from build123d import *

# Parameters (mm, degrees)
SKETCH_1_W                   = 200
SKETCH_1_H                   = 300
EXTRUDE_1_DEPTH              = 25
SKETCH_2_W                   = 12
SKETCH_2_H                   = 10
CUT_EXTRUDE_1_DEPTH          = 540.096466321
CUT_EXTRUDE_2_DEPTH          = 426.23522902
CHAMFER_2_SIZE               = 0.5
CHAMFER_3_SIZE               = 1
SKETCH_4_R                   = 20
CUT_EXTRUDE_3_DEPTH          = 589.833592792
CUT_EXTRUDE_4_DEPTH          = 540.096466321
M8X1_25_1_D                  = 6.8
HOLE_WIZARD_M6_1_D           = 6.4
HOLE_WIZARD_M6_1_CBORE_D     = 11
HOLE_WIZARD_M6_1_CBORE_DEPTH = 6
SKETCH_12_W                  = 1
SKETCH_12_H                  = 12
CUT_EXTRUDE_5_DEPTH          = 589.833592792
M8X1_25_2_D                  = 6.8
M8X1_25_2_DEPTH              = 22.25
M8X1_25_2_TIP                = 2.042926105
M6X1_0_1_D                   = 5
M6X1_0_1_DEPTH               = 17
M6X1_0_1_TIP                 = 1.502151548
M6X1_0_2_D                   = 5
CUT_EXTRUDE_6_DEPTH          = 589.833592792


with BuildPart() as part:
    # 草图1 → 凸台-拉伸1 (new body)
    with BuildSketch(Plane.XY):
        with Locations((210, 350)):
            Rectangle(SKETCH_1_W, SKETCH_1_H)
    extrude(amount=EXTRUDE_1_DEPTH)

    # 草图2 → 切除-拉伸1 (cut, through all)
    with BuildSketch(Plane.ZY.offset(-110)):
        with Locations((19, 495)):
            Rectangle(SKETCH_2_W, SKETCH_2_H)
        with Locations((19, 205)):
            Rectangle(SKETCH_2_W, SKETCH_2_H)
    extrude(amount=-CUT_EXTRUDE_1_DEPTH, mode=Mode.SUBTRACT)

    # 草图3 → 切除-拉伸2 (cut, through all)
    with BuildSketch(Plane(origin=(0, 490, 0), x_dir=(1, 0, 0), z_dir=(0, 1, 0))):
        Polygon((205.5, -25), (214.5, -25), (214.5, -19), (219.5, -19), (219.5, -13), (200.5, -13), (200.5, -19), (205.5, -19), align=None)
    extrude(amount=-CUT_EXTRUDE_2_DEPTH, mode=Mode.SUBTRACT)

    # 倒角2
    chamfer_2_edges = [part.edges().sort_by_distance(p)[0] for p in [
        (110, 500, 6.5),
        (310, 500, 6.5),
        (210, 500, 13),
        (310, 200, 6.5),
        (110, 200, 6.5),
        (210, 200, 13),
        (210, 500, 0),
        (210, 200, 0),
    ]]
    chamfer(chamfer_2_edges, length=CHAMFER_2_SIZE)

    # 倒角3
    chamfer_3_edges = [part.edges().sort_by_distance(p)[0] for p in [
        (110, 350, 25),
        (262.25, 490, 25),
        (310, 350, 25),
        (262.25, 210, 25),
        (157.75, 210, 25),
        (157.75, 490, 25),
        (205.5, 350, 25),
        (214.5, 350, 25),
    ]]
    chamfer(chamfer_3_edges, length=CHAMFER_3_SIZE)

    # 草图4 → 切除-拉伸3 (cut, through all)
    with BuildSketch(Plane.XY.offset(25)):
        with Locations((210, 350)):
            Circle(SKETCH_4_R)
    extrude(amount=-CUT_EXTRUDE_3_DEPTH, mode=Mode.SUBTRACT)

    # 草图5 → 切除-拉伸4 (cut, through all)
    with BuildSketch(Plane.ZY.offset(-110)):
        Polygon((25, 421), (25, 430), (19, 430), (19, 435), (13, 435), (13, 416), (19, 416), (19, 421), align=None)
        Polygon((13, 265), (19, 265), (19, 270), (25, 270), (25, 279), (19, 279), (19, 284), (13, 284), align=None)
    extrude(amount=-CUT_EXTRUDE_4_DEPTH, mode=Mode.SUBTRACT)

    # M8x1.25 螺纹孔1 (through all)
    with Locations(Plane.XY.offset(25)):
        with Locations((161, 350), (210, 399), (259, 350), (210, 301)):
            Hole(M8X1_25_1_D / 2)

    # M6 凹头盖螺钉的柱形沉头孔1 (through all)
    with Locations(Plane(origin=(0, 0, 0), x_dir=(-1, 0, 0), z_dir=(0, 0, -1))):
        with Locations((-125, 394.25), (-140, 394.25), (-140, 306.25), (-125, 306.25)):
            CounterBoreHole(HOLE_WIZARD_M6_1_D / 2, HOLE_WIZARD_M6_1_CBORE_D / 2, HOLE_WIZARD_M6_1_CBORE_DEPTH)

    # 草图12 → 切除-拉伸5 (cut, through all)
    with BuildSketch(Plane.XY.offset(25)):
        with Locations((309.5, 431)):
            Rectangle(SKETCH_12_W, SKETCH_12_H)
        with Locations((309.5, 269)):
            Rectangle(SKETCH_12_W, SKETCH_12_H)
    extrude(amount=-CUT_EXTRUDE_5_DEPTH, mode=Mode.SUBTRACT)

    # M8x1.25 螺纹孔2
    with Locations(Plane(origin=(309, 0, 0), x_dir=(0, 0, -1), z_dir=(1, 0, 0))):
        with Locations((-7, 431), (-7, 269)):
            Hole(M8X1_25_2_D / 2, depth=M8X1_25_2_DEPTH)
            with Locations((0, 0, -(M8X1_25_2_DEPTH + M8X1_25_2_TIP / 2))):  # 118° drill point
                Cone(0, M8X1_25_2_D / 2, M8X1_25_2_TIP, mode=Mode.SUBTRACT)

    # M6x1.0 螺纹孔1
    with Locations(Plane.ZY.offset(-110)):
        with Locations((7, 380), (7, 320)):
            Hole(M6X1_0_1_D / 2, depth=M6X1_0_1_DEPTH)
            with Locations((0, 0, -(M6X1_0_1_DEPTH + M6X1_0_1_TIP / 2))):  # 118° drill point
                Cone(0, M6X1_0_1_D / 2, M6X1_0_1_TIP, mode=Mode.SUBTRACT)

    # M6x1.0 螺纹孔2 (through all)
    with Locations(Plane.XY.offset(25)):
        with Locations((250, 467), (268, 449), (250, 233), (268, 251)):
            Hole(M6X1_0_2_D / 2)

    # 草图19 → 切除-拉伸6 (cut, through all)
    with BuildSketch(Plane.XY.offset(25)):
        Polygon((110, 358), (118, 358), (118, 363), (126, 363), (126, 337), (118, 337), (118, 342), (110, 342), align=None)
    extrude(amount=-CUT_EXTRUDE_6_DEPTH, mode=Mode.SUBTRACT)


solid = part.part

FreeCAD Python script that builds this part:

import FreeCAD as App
import Part
import Sketcher
Q = App.Units.Quantity


def edges_at(feature, points):
    """Names of the edges that pass closest to the given points."""
    edges = feature.Shape.Edges
    near = lambda p: min(range(len(edges)), key=lambda i: edges[i].distToShape(Part.Vertex(*p))[0])
    return sorted({f"Edge{near(p) + 1}" for p in points})

doc = App.newDocument("Part")
params = doc.addObject("Spreadsheet::Sheet", "Params")
for row, (alias, value) in enumerate([
    ("sketch1_width", "200 mm"),
    ("sketch1_height", "300 mm"),
    ("pad1_length", "25 mm"),
    ("sketch2_width", "10 mm"),
    ("sketch2_height", "12 mm"),
    ("sketch3_width", "9 mm"),
    ("sketch3_width2", "5 mm"),
    ("sketch3_height", "6 mm"),
    ("chamfer_size", "0.5 mm"),
    ("chamfer2_size", "1 mm"),
    ("sketch4_diameter", "40 mm"),
    ("sketch5_width", "9 mm"),
    ("sketch5_width2", "5 mm"),
    ("sketch5_height", "6 mm"),
    ("sketch6_diameter", "6.8 mm"),
    ("hole_diameter", "6.8 mm"),
    ("sketch7_diameter", "6.4 mm"),
    ("hole2_diameter", "6.4 mm"),
    ("hole2_cbore_diameter", "11 mm"),
    ("hole2_cbore_depth", "6 mm"),
    ("sketch8_width", "1 mm"),
    ("sketch8_height", "12 mm"),
    ("sketch9_diameter", "6.8 mm"),
    ("hole3_diameter", "6.8 mm"),
    ("hole3_depth", "22.25 mm"),
    ("sketch10_diameter", "5 mm"),
    ("hole4_diameter", "5 mm"),
    ("hole4_depth", "17 mm"),
    ("sketch11_diameter", "5 mm"),
    ("hole5_diameter", "5 mm"),
    ("sketch12_width", "8 mm"),
    ("sketch12_height", "16 mm"),
    ("sketch12_height2", "5 mm"),
], start=1):
    params.set(f"A{row}", alias)
    params.set(f"B{row}", "=" + value)
    params.setAlias(f"B{row}", alias)

body = doc.addObject("PartDesign::Body", "Body")

# Sketch on XY plane
sketch1 = body.newObject("Sketcher::SketchObject", "Sketch")
sketch1.AttachmentSupport = (doc.getObject("XY_Plane"), [""])
sketch1.MapMode = "FlatFace"
sketch1.addGeometry(Part.LineSegment(App.Vector(110, 500, 0), App.Vector(110, 200, 0)), False)
sketch1.addGeometry(Part.LineSegment(App.Vector(110, 200, 0), App.Vector(310, 200, 0)), False)
sketch1.addGeometry(Part.LineSegment(App.Vector(310, 200, 0), App.Vector(310, 500, 0)), False)
sketch1.addGeometry(Part.LineSegment(App.Vector(310, 500, 0), App.Vector(110, 500, 0)), False)
sketch1.addConstraint(Sketcher.Constraint("Coincident", 0, 2, 1, 1))
sketch1.addConstraint(Sketcher.Constraint("Coincident", 1, 2, 2, 1))
sketch1.addConstraint(Sketcher.Constraint("Coincident", 2, 2, 3, 1))
sketch1.addConstraint(Sketcher.Constraint("Coincident", 3, 2, 0, 1))
sketch1.addConstraint(Sketcher.Constraint("Vertical", 0))
sketch1.addConstraint(Sketcher.Constraint("Horizontal", 1))
sketch1.addConstraint(Sketcher.Constraint("Vertical", 2))
sketch1.addConstraint(Sketcher.Constraint("Horizontal", 3))
sketch1.addConstraint(Sketcher.Constraint("DistanceX", 1, 1, 1, 2, Q("200 mm")))
sketch1.addConstraint(Sketcher.Constraint("DistanceY", 0, 2, 0, 1, Q("300 mm")))
sketch1.addConstraint(Sketcher.Constraint("DistanceX", -1, 1, 0, 2, Q("110 mm")))
sketch1.addConstraint(Sketcher.Constraint("DistanceY", -1, 1, 0, 2, Q("200 mm")))
sketch1.setExpression("Constraints[8]", "Params.sketch1_width")
sketch1.setExpression("Constraints[9]", "Params.sketch1_height")
pad1 = body.newObject("PartDesign::Pad", "Pad")
pad1.Profile = sketch1
pad1.setExpression("Length", "Params.pad1_length")

# Sketch on YZ plane
sketch2 = body.newObject("Sketcher::SketchObject", "Sketch001")
sketch2.AttachmentSupport = (doc.getObject("YZ_Plane"), [""])
sketch2.MapMode = "FlatFace"
sketch2.AttachmentOffset = App.Placement(App.Vector(0, 0, 110), App.Rotation())
sketch2.addGeometry(Part.LineSegment(App.Vector(500, 13, 0), App.Vector(490, 13, 0)), False)
sketch2.addGeometry(Part.LineSegment(App.Vector(490, 13, 0), App.Vector(490, 25, 0)), False)
sketch2.addGeometry(Part.LineSegment(App.Vector(490, 25, 0), App.Vector(500, 25, 0)), False)
sketch2.addGeometry(Part.LineSegment(App.Vector(500, 25, 0), App.Vector(500, 13, 0)), False)
sketch2.addGeometry(Part.LineSegment(App.Vector(210, 13, 0), App.Vector(200, 13, 0)), False)
sketch2.addGeometry(Part.LineSegment(App.Vector(200, 13, 0), App.Vector(200, 25, 0)), False)
sketch2.addGeometry(Part.LineSegment(App.Vector(200, 25, 0), App.Vector(210, 25, 0)), False)
sketch2.addGeometry(Part.LineSegment(App.Vector(210, 25, 0), App.Vector(210, 13, 0)), False)
sketch2.addConstraint(Sketcher.Constraint("Coincident", 0, 2, 1, 1))
sketch2.addConstraint(Sketcher.Constraint("Coincident", 1, 2, 2, 1))
sketch2.addConstraint(Sketcher.Constraint("Coincident", 2, 2, 3, 1))
sketch2.addConstraint(Sketcher.Constraint("Coincident", 3, 2, 0, 1))
sketch2.addConstraint(Sketcher.Constraint("Coincident", 4, 2, 5, 1))
sketch2.addConstraint(Sketcher.Constraint("Coincident", 5, 2, 6, 1))
sketch2.addConstraint(Sketcher.Constraint("Coincident", 6, 2, 7, 1))
sketch2.addConstraint(Sketcher.Constraint("Coincident", 7, 2, 4, 1))
sketch2.addConstraint(Sketcher.Constraint("Horizontal", 0))
sketch2.addConstraint(Sketcher.Constraint("Vertical", 1))
sketch2.addConstraint(Sketcher.Constraint("Horizontal", 2))
sketch2.addConstraint(Sketcher.Constraint("Vertical", 3))
sketch2.addConstraint(Sketcher.Constraint("Horizontal", 4))
sketch2.addConstraint(Sketcher.Constraint("Vertical", 5))
sketch2.addConstraint(Sketcher.Constraint("Horizontal", 6))
sketch2.addConstraint(Sketcher.Constraint("Vertical", 7))
sketch2.addConstraint(Sketcher.Constraint("Horizontal", 3, 2, 4, 2))
sketch2.addConstraint(Sketcher.Constraint("Horizontal", 2, 2, 5, 2))
sketch2.addConstraint(Sketcher.Constraint("Equal", 2, 4))
sketch2.addConstraint(Sketcher.Constraint("DistanceX", 0, 2, 0, 1, Q("10 mm")))
sketch2.addConstraint(Sketcher.Constraint("DistanceY", 1, 1, 1, 2, Q("12 mm")))
sketch2.addConstraint(Sketcher.Constraint("DistanceX", -1, 1, 0, 2, Q("490 mm")))
sketch2.addConstraint(Sketcher.Constraint("DistanceY", -1, 1, 0, 2, Q("13 mm")))
sketch2.addConstraint(Sketcher.Constraint("DistanceX", -1, 1, 4, 2, Q("200 mm")))
sketch2.setExpression("Constraints[19]", "Params.sketch2_width")
sketch2.setExpression("Constraints[20]", "Params.sketch2_height")
pocket1 = body.newObject("PartDesign::Pocket", "Pocket")
pocket1.Profile = sketch2
pocket1.Type = "ThroughAll"
pocket1.Reversed = True

# Sketch on XZ plane
sketch3 = body.newObject("Sketcher::SketchObject", "Sketch002")
sketch3.AttachmentSupport = (doc.getObject("XZ_Plane"), [""])
sketch3.MapMode = "FlatFace"
sketch3.AttachmentOffset = App.Placement(App.Vector(0, 0, -490), App.Rotation())
sketch3.addGeometry(Part.LineSegment(App.Vector(205.5, 25, 0), App.Vector(214.5, 25, 0)), False)
sketch3.addGeometry(Part.LineSegment(App.Vector(214.5, 25, 0), App.Vector(214.5, 19, 0)), False)
sketch3.addGeometry(Part.LineSegment(App.Vector(214.5, 19, 0), App.Vector(219.5, 19, 0)), False)
sketch3.addGeometry(Part.LineSegment(App.Vector(219.5, 19, 0), App.Vector(219.5, 13, 0)), False)
sketch3.addGeometry(Part.LineSegment(App.Vector(219.5, 13, 0), App.Vector(200.5, 13, 0)), False)
sketch3.addGeometry(Part.LineSegment(App.Vector(200.5, 13, 0), App.Vector(200.5, 19, 0)), False)
sketch3.addGeometry(Part.LineSegment(App.Vector(200.5, 19, 0), App.Vector(205.5, 19, 0)), False)
sketch3.addGeometry(Part.LineSegment(App.Vector(205.5, 19, 0), App.Vector(205.5, 25, 0)), False)
sketch3.addConstraint(Sketcher.Constraint("Coincident", 0, 2, 1, 1))
sketch3.addConstraint(Sketcher.Constraint("Coincident", 1, 2, 2, 1))
sketch3.addConstraint(Sketcher.Constraint("Coincident", 2, 2, 3, 1))
sketch3.addConstraint(Sketcher.Constraint("Coincident", 3, 2, 4, 1))
sketch3.addConstraint(Sketcher.Constraint("Coincident", 4, 2, 5, 1))
sketch3.addConstraint(Sketcher.Constraint("Coincident", 5, 2, 6, 1))
sketch3.addConstraint(Sketcher.Constraint("Coincident", 6, 2, 7, 1))
sketch3.addConstraint(Sketcher.Constraint("Coincident", 7, 2, 0, 1))
sketch3.addConstraint(Sketcher.Constraint("Horizontal", 0))
sketch3.addConstraint(Sketcher.Constraint("Vertical", 1))
sketch3.addConstraint(Sketcher.Constraint("Horizontal", 2))
sketch3.addConstraint(Sketcher.Constraint("Vertical", 3))
sketch3.addConstraint(Sketcher.Constraint("Horizontal", 4))
sketch3.addConstraint(Sketcher.Constraint("Vertical", 5))
sketch3.addConstraint(Sketcher.Constraint("Horizontal", 6))
sketch3.addConstraint(Sketcher.Constraint("Vertical", 7))
sketch3.addConstraint(Sketcher.Constraint("Horizontal", 2, 2, 5, 2))
sketch3.addConstraint(Sketcher.Constraint("Equal", 2, 6))
sketch3.addConstraint(Sketcher.Constraint("Equal", 1, 3))
sketch3.addConstraint(Sketcher.Constraint("DistanceX", 0, 1, 0, 2, Q("9 mm")))
sketch3.addConstraint(Sketcher.Constraint("DistanceX", 2, 1, 2, 2, Q("5 mm")))
sketch3.addConstraint(Sketcher.Constraint("DistanceY", 1, 2, 1, 1, Q("6 mm")))
sketch3.addConstraint(Sketcher.Constraint("DistanceY", -1, 1, 0, 2, Q("25 mm")))
sketch3.addConstraint(Sketcher.Constraint("DistanceX", -1, 1, 0, 2, Q("214.5 mm")))
sketch3.setExpression("Constraints[19]", "Params.sketch3_width")
sketch3.setExpression("Constraints[20]", "Params.sketch3_width2")
sketch3.setExpression("Constraints[21]", "Params.sketch3_height")
pocket2 = body.newObject("PartDesign::Pocket", "Pocket001")
pocket2.Profile = sketch3
pocket2.Type = "ThroughAll"
pocket2.Reversed = True
doc.recompute()

chamfer = body.newObject("PartDesign::Chamfer", "Chamfer")
chamfer.Base = (pocket2, edges_at(pocket2, [
    (110, 500, 6.5),
    (310, 500, 6.5),
    (210, 500, 13),
    (310, 200, 6.5),
    (110, 200, 6.5),
    (210, 200, 13),
    (210, 500, 0),
    (210, 200, 0),
]))
chamfer.setExpression("Size", "Params.chamfer_size")
doc.recompute()

chamfer2 = body.newObject("PartDesign::Chamfer", "Chamfer001")
chamfer2.Base = (chamfer, edges_at(chamfer, [
    (110, 350, 25),
    (262.25, 490, 25),
    (310, 350, 25),
    (262.25, 210, 25),
    (157.75, 210, 25),
    (157.75, 490, 25),
    (205.5, 350, 25),
    (214.5, 350, 25),
]))
chamfer2.setExpression("Size", "Params.chamfer2_size")

# Sketch on XY plane
sketch4 = body.newObject("Sketcher::SketchObject", "Sketch003")
sketch4.AttachmentSupport = (doc.getObject("XY_Plane"), [""])
sketch4.MapMode = "FlatFace"
sketch4.AttachmentOffset = App.Placement(App.Vector(0, 0, 25), App.Rotation())
sketch4.addGeometry(Part.Circle(App.Vector(210, 350, 0), App.Vector(0, 0, 1), 20), False)
sketch4.addConstraint(Sketcher.Constraint("Diameter", 0, Q("40 mm")))
sketch4.addConstraint(Sketcher.Constraint("DistanceX", -1, 1, 0, 3, Q("210 mm")))
sketch4.addConstraint(Sketcher.Constraint("DistanceY", -1, 1, 0, 3, Q("350 mm")))
sketch4.setExpression("Constraints[0]", "Params.sketch4_diameter")
pocket3 = body.newObject("PartDesign::Pocket", "Pocket002")
pocket3.Profile = sketch4
pocket3.Type = "ThroughAll"

# Sketch on YZ plane
sketch5 = body.newObject("Sketcher::SketchObject", "Sketch004")
sketch5.AttachmentSupport = (doc.getObject("YZ_Plane"), [""])
sketch5.MapMode = "FlatFace"
sketch5.AttachmentOffset = App.Placement(App.Vector(0, 0, 110), App.Rotation())
sketch5.addGeometry(Part.LineSegment(App.Vector(421, 25, 0), App.Vector(430, 25, 0)), False)
sketch5.addGeometry(Part.LineSegment(App.Vector(430, 25, 0), App.Vector(430, 19, 0)), False)
sketch5.addGeometry(Part.LineSegment(App.Vector(430, 19, 0), App.Vector(435, 19, 0)), False)
sketch5.addGeometry(Part.LineSegment(App.Vector(435, 19, 0), App.Vector(435, 13, 0)), False)
sketch5.addGeometry(Part.LineSegment(App.Vector(435, 13, 0), App.Vector(416, 13, 0)), False)
sketch5.addGeometry(Part.LineSegment(App.Vector(416, 13, 0), App.Vector(416, 19, 0)), False)
sketch5.addGeometry(Part.LineSegment(App.Vector(416, 19, 0), App.Vector(421, 19, 0)), False)
sketch5.addGeometry(Part.LineSegment(App.Vector(421, 19, 0), App.Vector(421, 25, 0)), False)
sketch5.addGeometry(Part.LineSegment(App.Vector(265, 13, 0), App.Vector(265, 19, 0)), False)
sketch5.addGeometry(Part.LineSegment(App.Vector(265, 19, 0), App.Vector(270, 19, 0)), False)
sketch5.addGeometry(Part.LineSegment(App.Vector(270, 19, 0), App.Vector(270, 25, 0)), False)
sketch5.addGeometry(Part.LineSegment(App.Vector(270, 25, 0), App.Vector(279, 25, 0)), False)
sketch5.addGeometry(Part.LineSegment(App.Vector(279, 25, 0), App.Vector(279, 19, 0)), False)
sketch5.addGeometry(Part.LineSegment(App.Vector(279, 19, 0), App.Vector(284, 19, 0)), False)
sketch5.addGeometry(Part.LineSegment(App.Vector(284, 19, 0), App.Vector(284, 13, 0)), False)
sketch5.addGeometry(Part.LineSegment(App.Vector(284, 13, 0), App.Vector(265, 13, 0)), False)
sketch5.addConstraint(Sketcher.Constraint("Coincident", 0, 2, 1, 1))
sketch5.addConstraint(Sketcher.Constraint("Coincident", 1, 2, 2, 1))
sketch5.addConstraint(Sketcher.Constraint("Coincident", 2, 2, 3, 1))
sketch5.addConstraint(Sketcher.Constraint("Coincident", 3, 2, 4, 1))
sketch5.addConstraint(Sketcher.Constraint("Coincident", 4, 2, 5, 1))
sketch5.addConstraint(Sketcher.Constraint("Coincident", 5, 2, 6, 1))
sketch5.addConstraint(Sketcher.Constraint("Coincident", 6, 2, 7, 1))
sketch5.addConstraint(Sketcher.Constraint("Coincident", 7, 2, 0, 1))
sketch5.addConstraint(Sketcher.Constraint("Coincident", 8, 2, 9, 1))
sketch5.addConstraint(Sketcher.Constraint("Coincident", 9, 2, 10, 1))
sketch5.addConstraint(Sketcher.Constraint("Coincident", 10, 2, 11, 1))
sketch5.addConstraint(Sketcher.Constraint("Coincident", 11, 2, 12, 1))
sketch5.addConstraint(Sketcher.Constraint("Coincident", 12, 2, 13, 1))
sketch5.addConstraint(Sketcher.Constraint("Coincident", 13, 2, 14, 1))
sketch5.addConstraint(Sketcher.Constraint("Coincident", 14, 2, 15, 1))
sketch5.addConstraint(Sketcher.Constraint("Coincident", 15, 2, 8, 1))
sketch5.addConstraint(Sketcher.Constraint("Horizontal", 0))
sketch5.addConstraint(Sketcher.Constraint("Vertical", 1))
sketch5.addConstraint(Sketcher.Constraint("Horizontal", 2))
sketch5.addConstraint(Sketcher.Constraint("Vertical", 3))
sketch5.addConstraint(Sketcher.Constraint("Horizontal", 4))
sketch5.addConstraint(Sketcher.Constraint("Vertical", 5))
sketch5.addConstraint(Sketcher.Constraint("Horizontal", 6))
sketch5.addConstraint(Sketcher.Constraint("Vertical", 7))
sketch5.addConstraint(Sketcher.Constraint("Vertical", 8))
sketch5.addConstraint(Sketcher.Constraint("Horizontal", 9))
sketch5.addConstraint(Sketcher.Constraint("Vertical", 10))
sketch5.addConstraint(Sketcher.Constraint("Horizontal", 11))
sketch5.addConstraint(Sketcher.Constraint("Vertical", 12))
sketch5.addConstraint(Sketcher.Constraint("Horizontal", 13))
sketch5.addConstraint(Sketcher.Constraint("Vertical", 14))
sketch5.addConstraint(Sketcher.Constraint("Horizontal", 15))
sketch5.addConstraint(Sketcher.Constraint("Horizontal", 2, 2, 5, 2))
sketch5.addConstraint(Sketcher.Constraint("Horizontal", 6, 2, 8, 2))
sketch5.addConstraint(Sketcher.Constraint("Horizontal", 7, 2, 10, 2))
sketch5.addConstraint(Sketcher.Constraint("Horizontal", 9, 2, 12, 2))
sketch5.addConstraint(Sketcher.Constraint("Horizontal", 4, 2, 14, 2))
sketch5.addConstraint(Sketcher.Constraint("Equal", 2, 6))
sketch5.addConstraint(Sketcher.Constraint("Equal", 6, 9))
sketch5.addConstraint(Sketcher.Constraint("Equal", 0, 11))
sketch5.addConstraint(Sketcher.Constraint("Equal", 9, 13))
sketch5.addConstraint(Sketcher.Constraint("Equal", 1, 3))
sketch5.addConstraint(Sketcher.Constraint("DistanceX", 0, 1, 0, 2, Q("9 mm")))
sketch5.addConstraint(Sketcher.Constraint("DistanceX", 2, 1, 2, 2, Q("5 mm")))
sketch5.addConstraint(Sketcher.Constraint("DistanceY", 1, 2, 1, 1, Q("6 mm")))
sketch5.addConstraint(Sketcher.Constraint("DistanceX", -1, 1, 0, 2, Q("430 mm")))
sketch5.addConstraint(Sketcher.Constraint("DistanceY", -1, 1, 0, 2, Q("25 mm")))
sketch5.addConstraint(Sketcher.Constraint("DistanceX", -1, 1, 8, 2, Q("265 mm")))
sketch5.setExpression("Constraints[42]", "Params.sketch5_width")
sketch5.setExpression("Constraints[43]", "Params.sketch5_width2")
sketch5.setExpression("Constraints[44]", "Params.sketch5_height")
pocket4 = body.newObject("PartDesign::Pocket", "Pocket003")
pocket4.Profile = sketch5
pocket4.Type = "ThroughAll"
pocket4.Reversed = True

# Sketch on XY plane
sketch6 = body.newObject("Sketcher::SketchObject", "Sketch005")
sketch6.AttachmentSupport = (doc.getObject("XY_Plane"), [""])
sketch6.MapMode = "FlatFace"
sketch6.AttachmentOffset = App.Placement(App.Vector(0, 0, 25), App.Rotation())
sketch6.addGeometry(Part.Circle(App.Vector(161, 350, 0), App.Vector(0, 0, 1), 3.4), False)
sketch6.addGeometry(Part.Circle(App.Vector(210, 399, 0), App.Vector(0, 0, 1), 3.4), False)
sketch6.addGeometry(Part.Circle(App.Vector(259, 350, 0), App.Vector(0, 0, 1), 3.4), False)
sketch6.addGeometry(Part.Circle(App.Vector(210, 301, 0), App.Vector(0, 0, 1), 3.4), False)
sketch6.addConstraint(Sketcher.Constraint("Equal", 0, 1))
sketch6.addConstraint(Sketcher.Constraint("Equal", 1, 2))
sketch6.addConstraint(Sketcher.Constraint("Equal", 2, 3))
sketch6.addConstraint(Sketcher.Constraint("Horizontal", 0, 3, 2, 3))
sketch6.addConstraint(Sketcher.Constraint("Vertical", 1, 3, 3, 3))
sketch6.addConstraint(Sketcher.Constraint("Diameter", 0, Q("6.8 mm")))
sketch6.addConstraint(Sketcher.Constraint("DistanceX", -1, 1, 0, 3, Q("161 mm")))
sketch6.addConstraint(Sketcher.Constraint("DistanceY", -1, 1, 0, 3, Q("350 mm")))
sketch6.addConstraint(Sketcher.Constraint("DistanceX", -1, 1, 1, 3, Q("210 mm")))
sketch6.addConstraint(Sketcher.Constraint("DistanceY", -1, 1, 1, 3, Q("399 mm")))
sketch6.addConstraint(Sketcher.Constraint("DistanceX", -1, 1, 2, 3, Q("259 mm")))
sketch6.addConstraint(Sketcher.Constraint("DistanceY", -1, 1, 3, 3, Q("301 mm")))
sketch6.setExpression("Constraints[5]", "Params.sketch6_diameter")
doc.recompute()
hole = body.newObject("PartDesign::Hole", "Hole")
hole.Profile = sketch6
hole.ThreadType = "None"
hole.setExpression("Diameter", "Params.hole_diameter")
hole.DepthType = "ThroughAll"

# Sketch on XY plane
sketch7 = body.newObject("Sketcher::SketchObject", "Sketch006")
sketch7.AttachmentSupport = (doc.getObject("XY_Plane"), [""])
sketch7.MapMode = "FlatFace"
sketch7.addGeometry(Part.Circle(App.Vector(125, 394.25, 0), App.Vector(0, 0, 1), 3.2), False)
sketch7.addGeometry(Part.Circle(App.Vector(140, 394.25, 0), App.Vector(0, 0, 1), 3.2), False)
sketch7.addGeometry(Part.Circle(App.Vector(140, 306.25, 0), App.Vector(0, 0, 1), 3.2), False)
sketch7.addGeometry(Part.Circle(App.Vector(125, 306.25, 0), App.Vector(0, 0, 1), 3.2), False)
sketch7.addConstraint(Sketcher.Constraint("Equal", 0, 1))
sketch7.addConstraint(Sketcher.Constraint("Equal", 1, 2))
sketch7.addConstraint(Sketcher.Constraint("Equal", 2, 3))
sketch7.addConstraint(Sketcher.Constraint("Horizontal", 0, 3, 1, 3))
sketch7.addConstraint(Sketcher.Constraint("Horizontal", 2, 3, 3, 3))
sketch7.addConstraint(Sketcher.Constraint("Vertical", 1, 3, 2, 3))
sketch7.addConstraint(Sketcher.Constraint("Vertical", 0, 3, 3, 3))
sketch7.addConstraint(Sketcher.Constraint("Diameter", 0, Q("6.4 mm")))
sketch7.addConstraint(Sketcher.Constraint("DistanceX", -1, 1, 0, 3, Q("125 mm")))
sketch7.addConstraint(Sketcher.Constraint("DistanceX", -1, 1, 1, 3, Q("140 mm")))
sketch7.addConstraint(Sketcher.Constraint("DistanceY", 2, 3, 1, 3, Q("88 mm")))
sketch7.addConstraint(Sketcher.Constraint("DistanceY", -1, 1, 0, 3, Q("394.25 mm")))
sketch7.setExpression("Constraints[7]", "Params.sketch7_diameter")
doc.recompute()
hole2 = body.newObject("PartDesign::Hole", "Hole001")
hole2.Profile = sketch7
hole2.ThreadType = "None"
hole2.setExpression("Diameter", "Params.hole2_diameter")
hole2.DepthType = "ThroughAll"
hole2.HoleCutType = "Counterbore"
hole2.setExpression("HoleCutDiameter", "Params.hole2_cbore_diameter")
hole2.setExpression("HoleCutDepth", "Params.hole2_cbore_depth")
hole2.Reversed = True

# Sketch on XY plane
sketch8 = body.newObject("Sketcher::SketchObject", "Sketch007")
sketch8.AttachmentSupport = (doc.getObject("XY_Plane"), [""])
sketch8.MapMode = "FlatFace"
sketch8.AttachmentOffset = App.Placement(App.Vector(0, 0, 25), App.Rotation())
sketch8.addGeometry(Part.LineSegment(App.Vector(309, 437, 0), App.Vector(309, 425, 0)), False)
sketch8.addGeometry(Part.LineSegment(App.Vector(309, 425, 0), App.Vector(310, 425, 0)), False)
sketch8.addGeometry(Part.LineSegment(App.Vector(310, 425, 0), App.Vector(310, 437, 0)), False)
sketch8.addGeometry(Part.LineSegment(App.Vector(310, 437, 0), App.Vector(309, 437, 0)), False)
sketch8.addGeometry(Part.LineSegment(App.Vector(309, 275, 0), App.Vector(309, 263, 0)), False)
sketch8.addGeometry(Part.LineSegment(App.Vector(309, 263, 0), App.Vector(310, 263, 0)), False)
sketch8.addGeometry(Part.LineSegment(App.Vector(310, 263, 0), App.Vector(310, 275, 0)), False)
sketch8.addGeometry(Part.LineSegment(App.Vector(310, 275, 0), App.Vector(309, 275, 0)), False)
sketch8.addConstraint(Sketcher.Constraint("Coincident", 0, 2, 1, 1))
sketch8.addConstraint(Sketcher.Constraint("Coincident", 1, 2, 2, 1))
sketch8.addConstraint(Sketcher.Constraint("Coincident", 2, 2, 3, 1))
sketch8.addConstraint(Sketcher.Constraint("Coincident", 3, 2, 0, 1))
sketch8.addConstraint(Sketcher.Constraint("Coincident", 4, 2, 5, 1))
sketch8.addConstraint(Sketcher.Constraint("Coincident", 5, 2, 6, 1))
sketch8.addConstraint(Sketcher.Constraint("Coincident", 6, 2, 7, 1))
sketch8.addConstraint(Sketcher.Constraint("Coincident", 7, 2, 4, 1))
sketch8.addConstraint(Sketcher.Constraint("Vertical", 0))
sketch8.addConstraint(Sketcher.Constraint("Horizontal", 1))
sketch8.addConstraint(Sketcher.Constraint("Vertical", 2))
sketch8.addConstraint(Sketcher.Constraint("Horizontal", 3))
sketch8.addConstraint(Sketcher.Constraint("Vertical", 4))
sketch8.addConstraint(Sketcher.Constraint("Horizontal", 5))
sketch8.addConstraint(Sketcher.Constraint("Vertical", 6))
sketch8.addConstraint(Sketcher.Constraint("Horizontal", 7))
sketch8.addConstraint(Sketcher.Constraint("Vertical", 3, 2, 4, 2))
sketch8.addConstraint(Sketcher.Constraint("Vertical", 2, 2, 5, 2))
sketch8.addConstraint(Sketcher.Constraint("Equal", 2, 4))
sketch8.addConstraint(Sketcher.Constraint("DistanceX", 1, 1, 1, 2, Q("1 mm")))
sketch8.addConstraint(Sketcher.Constraint("DistanceY", 0, 2, 0, 1, Q("12 mm")))
sketch8.addConstraint(Sketcher.Constraint("DistanceX", -1, 1, 0, 2, Q("309 mm")))
sketch8.addConstraint(Sketcher.Constraint("DistanceY", -1, 1, 0, 2, Q("425 mm")))
sketch8.addConstraint(Sketcher.Constraint("DistanceY", -1, 1, 4, 2, Q("263 mm")))
sketch8.setExpression("Constraints[19]", "Params.sketch8_width")
sketch8.setExpression("Constraints[20]", "Params.sketch8_height")
pocket5 = body.newObject("PartDesign::Pocket", "Pocket004")
pocket5.Profile = sketch8
pocket5.Type = "ThroughAll"

# Sketch on YZ plane
sketch9 = body.newObject("Sketcher::SketchObject", "Sketch008")
sketch9.AttachmentSupport = (doc.getObject("YZ_Plane"), [""])
sketch9.MapMode = "FlatFace"
sketch9.AttachmentOffset = App.Placement(App.Vector(0, 0, 309), App.Rotation())
sketch9.addGeometry(Part.Circle(App.Vector(431, 7, 0), App.Vector(0, 0, 1), 3.4), False)
sketch9.addGeometry(Part.Circle(App.Vector(269, 7, 0), App.Vector(0, 0, 1), 3.4), False)
sketch9.addConstraint(Sketcher.Constraint("Equal", 0, 1))
sketch9.addConstraint(Sketcher.Constraint("Horizontal", 0, 3, 1, 3))
sketch9.addConstraint(Sketcher.Constraint("Diameter", 0, Q("6.8 mm")))
sketch9.addConstraint(Sketcher.Constraint("DistanceX", -1, 1, 0, 3, Q("431 mm")))
sketch9.addConstraint(Sketcher.Constraint("DistanceY", -1, 1, 0, 3, Q("7 mm")))
sketch9.addConstraint(Sketcher.Constraint("DistanceX", -1, 1, 1, 3, Q("269 mm")))
sketch9.setExpression("Constraints[2]", "Params.sketch9_diameter")
doc.recompute()
hole3 = body.newObject("PartDesign::Hole", "Hole002")
hole3.Profile = sketch9
hole3.ThreadType = "None"
hole3.setExpression("Diameter", "Params.hole3_diameter")
hole3.DepthType = "Dimension"
hole3.setExpression("Depth", "Params.hole3_depth")
hole3.DrillPoint = "Angled"
hole3.DrillPointAngle = 118

# Sketch on YZ plane
sketch10 = body.newObject("Sketcher::SketchObject", "Sketch009")
sketch10.AttachmentSupport = (doc.getObject("YZ_Plane"), [""])
sketch10.MapMode = "FlatFace"
sketch10.AttachmentOffset = App.Placement(App.Vector(0, 0, 110), App.Rotation())
sketch10.addGeometry(Part.Circle(App.Vector(380, 7, 0), App.Vector(0, 0, 1), 2.5), False)
sketch10.addGeometry(Part.Circle(App.Vector(320, 7, 0), App.Vector(0, 0, 1), 2.5), False)
sketch10.addConstraint(Sketcher.Constraint("Equal", 0, 1))
sketch10.addConstraint(Sketcher.Constraint("Horizontal", 0, 3, 1, 3))
sketch10.addConstraint(Sketcher.Constraint("Diameter", 0, Q("5 mm")))
sketch10.addConstraint(Sketcher.Constraint("DistanceX", -1, 1, 0, 3, Q("380 mm")))
sketch10.addConstraint(Sketcher.Constraint("DistanceY", -1, 1, 0, 3, Q("7 mm")))
sketch10.addConstraint(Sketcher.Constraint("DistanceX", -1, 1, 1, 3, Q("320 mm")))
sketch10.setExpression("Constraints[2]", "Params.sketch10_diameter")
doc.recompute()
hole4 = body.newObject("PartDesign::Hole", "Hole003")
hole4.Profile = sketch10
hole4.ThreadType = "None"
hole4.setExpression("Diameter", "Params.hole4_diameter")
hole4.DepthType = "Dimension"
hole4.setExpression("Depth", "Params.hole4_depth")
hole4.DrillPoint = "Angled"
hole4.DrillPointAngle = 118
hole4.Reversed = True

# Sketch on XY plane
sketch11 = body.newObject("Sketcher::SketchObject", "Sketch010")
sketch11.AttachmentSupport = (doc.getObject("XY_Plane"), [""])
sketch11.MapMode = "FlatFace"
sketch11.AttachmentOffset = App.Placement(App.Vector(0, 0, 25), App.Rotation())
sketch11.addGeometry(Part.Circle(App.Vector(250, 467, 0), App.Vector(0, 0, 1), 2.5), False)
sketch11.addGeometry(Part.Circle(App.Vector(268, 449, 0), App.Vector(0, 0, 1), 2.5), False)
sketch11.addGeometry(Part.Circle(App.Vector(250, 233, 0), App.Vector(0, 0, 1), 2.5), False)
sketch11.addGeometry(Part.Circle(App.Vector(268, 251, 0), App.Vector(0, 0, 1), 2.5), False)
sketch11.addConstraint(Sketcher.Constraint("Equal", 0, 1))
sketch11.addConstraint(Sketcher.Constraint("Equal", 1, 2))
sketch11.addConstraint(Sketcher.Constraint("Equal", 2, 3))
sketch11.addConstraint(Sketcher.Constraint("Vertical", 0, 3, 2, 3))
sketch11.addConstraint(Sketcher.Constraint("Vertical", 1, 3, 3, 3))
sketch11.addConstraint(Sketcher.Constraint("Diameter", 0, Q("5 mm")))
sketch11.addConstraint(Sketcher.Constraint("DistanceX", -1, 1, 0, 3, Q("250 mm")))
sketch11.addConstraint(Sketcher.Constraint("DistanceY", -1, 1, 0, 3, Q("467 mm")))
sketch11.addConstraint(Sketcher.Constraint("DistanceX", -1, 1, 1, 3, Q("268 mm")))
sketch11.addConstraint(Sketcher.Constraint("DistanceY", -1, 1, 1, 3, Q("449 mm")))
sketch11.addConstraint(Sketcher.Constraint("DistanceY", -1, 1, 2, 3, Q("233 mm")))
sketch11.addConstraint(Sketcher.Constraint("DistanceY", -1, 1, 3, 3, Q("251 mm")))
sketch11.setExpression("Constraints[5]", "Params.sketch11_diameter")
doc.recompute()
hole5 = body.newObject("PartDesign::Hole", "Hole004")
hole5.Profile = sketch11
hole5.ThreadType = "None"
hole5.setExpression("Diameter", "Params.hole5_diameter")
hole5.DepthType = "ThroughAll"

# Sketch on XY plane
sketch12 = body.newObject("Sketcher::SketchObject", "Sketch011")
sketch12.AttachmentSupport = (doc.getObject("XY_Plane"), [""])
sketch12.MapMode = "FlatFace"
sketch12.AttachmentOffset = App.Placement(App.Vector(0, 0, 25), App.Rotation())
sketch12.addGeometry(Part.LineSegment(App.Vector(118, 358, 0), App.Vector(110, 358, 0)), False)
sketch12.addGeometry(Part.LineSegment(App.Vector(110, 358, 0), App.Vector(110, 342, 0)), False)
sketch12.addGeometry(Part.LineSegment(App.Vector(110, 342, 0), App.Vector(118, 342, 0)), False)
sketch12.addGeometry(Part.LineSegment(App.Vector(118, 342, 0), App.Vector(118, 337, 0)), False)
sketch12.addGeometry(Part.LineSegment(App.Vector(118, 337, 0), App.Vector(126, 337, 0)), False)
sketch12.addGeometry(Part.LineSegment(App.Vector(126, 337, 0), App.Vector(126, 363, 0)), False)
sketch12.addGeometry(Part.LineSegment(App.Vector(126, 363, 0), App.Vector(118, 363, 0)), False)
sketch12.addGeometry(Part.LineSegment(App.Vector(118, 363, 0), App.Vector(118, 358, 0)), False)
sketch12.addConstraint(Sketcher.Constraint("Coincident", 0, 2, 1, 1))
sketch12.addConstraint(Sketcher.Constraint("Coincident", 1, 2, 2, 1))
sketch12.addConstraint(Sketcher.Constraint("Coincident", 2, 2, 3, 1))
sketch12.addConstraint(Sketcher.Constraint("Coincident", 3, 2, 4, 1))
sketch12.addConstraint(Sketcher.Constraint("Coincident", 4, 2, 5, 1))
sketch12.addConstraint(Sketcher.Constraint("Coincident", 5, 2, 6, 1))
sketch12.addConstraint(Sketcher.Constraint("Coincident", 6, 2, 7, 1))
sketch12.addConstraint(Sketcher.Constraint("Coincident", 7, 2, 0, 1))
sketch12.addConstraint(Sketcher.Constraint("Horizontal", 0))
sketch12.addConstraint(Sketcher.Constraint("Vertical", 1))
sketch12.addConstraint(Sketcher.Constraint("Horizontal", 2))
sketch12.addConstraint(Sketcher.Constraint("Vertical", 3))
sketch12.addConstraint(Sketcher.Constraint("Horizontal", 4))
sketch12.addConstraint(Sketcher.Constraint("Vertical", 5))
sketch12.addConstraint(Sketcher.Constraint("Horizontal", 6))
sketch12.addConstraint(Sketcher.Constraint("Vertical", 7))
sketch12.addConstraint(Sketcher.Constraint("Vertical", 3, 2, 6, 2))
sketch12.addConstraint(Sketcher.Constraint("Equal", 2, 4))
sketch12.addConstraint(Sketcher.Constraint("Equal", 3, 7))
sketch12.addConstraint(Sketcher.Constraint("DistanceX", 0, 2, 0, 1, Q("8 mm")))
sketch12.addConstraint(Sketcher.Constraint("DistanceY", 1, 2, 1, 1, Q("16 mm")))
sketch12.addConstraint(Sketcher.Constraint("DistanceY", 3, 2, 3, 1, Q("5 mm")))
sketch12.addConstraint(Sketcher.Constraint("DistanceX", -1, 1, 0, 2, Q("110 mm")))
sketch12.addConstraint(Sketcher.Constraint("DistanceY", -1, 1, 0, 2, Q("358 mm")))
sketch12.setExpression("Constraints[19]", "Params.sketch12_width")
sketch12.setExpression("Constraints[20]", "Params.sketch12_height")
sketch12.setExpression("Constraints[21]", "Params.sketch12_height2")
pocket6 = body.newObject("PartDesign::Pocket", "Pocket005")
pocket6.Profile = sketch12
pocket6.Type = "ThroughAll"

doc.recompute()
